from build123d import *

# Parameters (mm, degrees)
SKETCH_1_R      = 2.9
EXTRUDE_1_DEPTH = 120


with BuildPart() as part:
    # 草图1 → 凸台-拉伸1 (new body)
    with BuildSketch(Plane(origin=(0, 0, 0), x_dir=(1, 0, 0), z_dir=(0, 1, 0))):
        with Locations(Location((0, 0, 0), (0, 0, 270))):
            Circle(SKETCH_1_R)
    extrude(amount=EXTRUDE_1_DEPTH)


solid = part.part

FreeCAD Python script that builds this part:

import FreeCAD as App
import Part
import Sketcher
from FreeCAD import Vector
Q = App.Units.Quantity

doc = App.newDocument("Part")
body = doc.addObject("PartDesign::Body", "Body")

# Sketch on XZ plane
sketch1 = doc.addObject("Sketcher::SketchObject", "Sketch")
body.addObject(sketch1)
sketch1.AttachmentSupport = (doc.XZ_Plane, [""])
sketch1.MapMode = "FlatFace"
sketch1.addGeometry(Part.Circle(Vector(0, 0, 0), Vector(0, 0, 1), 2.9), False)
sketch1.addConstraint(Sketcher.Constraint("Coincident", 0, 3, -1, 1))
sketch1.addConstraint(Sketcher.Constraint("Diameter", 0, Q("5.8 mm")))
pad1 = doc.addObject("PartDesign::Pad", "Pad")
body.addObject(pad1)
pad1.Profile = sketch1
pad1.Length = 120
pad1.Reversed = True

doc.recompute()
